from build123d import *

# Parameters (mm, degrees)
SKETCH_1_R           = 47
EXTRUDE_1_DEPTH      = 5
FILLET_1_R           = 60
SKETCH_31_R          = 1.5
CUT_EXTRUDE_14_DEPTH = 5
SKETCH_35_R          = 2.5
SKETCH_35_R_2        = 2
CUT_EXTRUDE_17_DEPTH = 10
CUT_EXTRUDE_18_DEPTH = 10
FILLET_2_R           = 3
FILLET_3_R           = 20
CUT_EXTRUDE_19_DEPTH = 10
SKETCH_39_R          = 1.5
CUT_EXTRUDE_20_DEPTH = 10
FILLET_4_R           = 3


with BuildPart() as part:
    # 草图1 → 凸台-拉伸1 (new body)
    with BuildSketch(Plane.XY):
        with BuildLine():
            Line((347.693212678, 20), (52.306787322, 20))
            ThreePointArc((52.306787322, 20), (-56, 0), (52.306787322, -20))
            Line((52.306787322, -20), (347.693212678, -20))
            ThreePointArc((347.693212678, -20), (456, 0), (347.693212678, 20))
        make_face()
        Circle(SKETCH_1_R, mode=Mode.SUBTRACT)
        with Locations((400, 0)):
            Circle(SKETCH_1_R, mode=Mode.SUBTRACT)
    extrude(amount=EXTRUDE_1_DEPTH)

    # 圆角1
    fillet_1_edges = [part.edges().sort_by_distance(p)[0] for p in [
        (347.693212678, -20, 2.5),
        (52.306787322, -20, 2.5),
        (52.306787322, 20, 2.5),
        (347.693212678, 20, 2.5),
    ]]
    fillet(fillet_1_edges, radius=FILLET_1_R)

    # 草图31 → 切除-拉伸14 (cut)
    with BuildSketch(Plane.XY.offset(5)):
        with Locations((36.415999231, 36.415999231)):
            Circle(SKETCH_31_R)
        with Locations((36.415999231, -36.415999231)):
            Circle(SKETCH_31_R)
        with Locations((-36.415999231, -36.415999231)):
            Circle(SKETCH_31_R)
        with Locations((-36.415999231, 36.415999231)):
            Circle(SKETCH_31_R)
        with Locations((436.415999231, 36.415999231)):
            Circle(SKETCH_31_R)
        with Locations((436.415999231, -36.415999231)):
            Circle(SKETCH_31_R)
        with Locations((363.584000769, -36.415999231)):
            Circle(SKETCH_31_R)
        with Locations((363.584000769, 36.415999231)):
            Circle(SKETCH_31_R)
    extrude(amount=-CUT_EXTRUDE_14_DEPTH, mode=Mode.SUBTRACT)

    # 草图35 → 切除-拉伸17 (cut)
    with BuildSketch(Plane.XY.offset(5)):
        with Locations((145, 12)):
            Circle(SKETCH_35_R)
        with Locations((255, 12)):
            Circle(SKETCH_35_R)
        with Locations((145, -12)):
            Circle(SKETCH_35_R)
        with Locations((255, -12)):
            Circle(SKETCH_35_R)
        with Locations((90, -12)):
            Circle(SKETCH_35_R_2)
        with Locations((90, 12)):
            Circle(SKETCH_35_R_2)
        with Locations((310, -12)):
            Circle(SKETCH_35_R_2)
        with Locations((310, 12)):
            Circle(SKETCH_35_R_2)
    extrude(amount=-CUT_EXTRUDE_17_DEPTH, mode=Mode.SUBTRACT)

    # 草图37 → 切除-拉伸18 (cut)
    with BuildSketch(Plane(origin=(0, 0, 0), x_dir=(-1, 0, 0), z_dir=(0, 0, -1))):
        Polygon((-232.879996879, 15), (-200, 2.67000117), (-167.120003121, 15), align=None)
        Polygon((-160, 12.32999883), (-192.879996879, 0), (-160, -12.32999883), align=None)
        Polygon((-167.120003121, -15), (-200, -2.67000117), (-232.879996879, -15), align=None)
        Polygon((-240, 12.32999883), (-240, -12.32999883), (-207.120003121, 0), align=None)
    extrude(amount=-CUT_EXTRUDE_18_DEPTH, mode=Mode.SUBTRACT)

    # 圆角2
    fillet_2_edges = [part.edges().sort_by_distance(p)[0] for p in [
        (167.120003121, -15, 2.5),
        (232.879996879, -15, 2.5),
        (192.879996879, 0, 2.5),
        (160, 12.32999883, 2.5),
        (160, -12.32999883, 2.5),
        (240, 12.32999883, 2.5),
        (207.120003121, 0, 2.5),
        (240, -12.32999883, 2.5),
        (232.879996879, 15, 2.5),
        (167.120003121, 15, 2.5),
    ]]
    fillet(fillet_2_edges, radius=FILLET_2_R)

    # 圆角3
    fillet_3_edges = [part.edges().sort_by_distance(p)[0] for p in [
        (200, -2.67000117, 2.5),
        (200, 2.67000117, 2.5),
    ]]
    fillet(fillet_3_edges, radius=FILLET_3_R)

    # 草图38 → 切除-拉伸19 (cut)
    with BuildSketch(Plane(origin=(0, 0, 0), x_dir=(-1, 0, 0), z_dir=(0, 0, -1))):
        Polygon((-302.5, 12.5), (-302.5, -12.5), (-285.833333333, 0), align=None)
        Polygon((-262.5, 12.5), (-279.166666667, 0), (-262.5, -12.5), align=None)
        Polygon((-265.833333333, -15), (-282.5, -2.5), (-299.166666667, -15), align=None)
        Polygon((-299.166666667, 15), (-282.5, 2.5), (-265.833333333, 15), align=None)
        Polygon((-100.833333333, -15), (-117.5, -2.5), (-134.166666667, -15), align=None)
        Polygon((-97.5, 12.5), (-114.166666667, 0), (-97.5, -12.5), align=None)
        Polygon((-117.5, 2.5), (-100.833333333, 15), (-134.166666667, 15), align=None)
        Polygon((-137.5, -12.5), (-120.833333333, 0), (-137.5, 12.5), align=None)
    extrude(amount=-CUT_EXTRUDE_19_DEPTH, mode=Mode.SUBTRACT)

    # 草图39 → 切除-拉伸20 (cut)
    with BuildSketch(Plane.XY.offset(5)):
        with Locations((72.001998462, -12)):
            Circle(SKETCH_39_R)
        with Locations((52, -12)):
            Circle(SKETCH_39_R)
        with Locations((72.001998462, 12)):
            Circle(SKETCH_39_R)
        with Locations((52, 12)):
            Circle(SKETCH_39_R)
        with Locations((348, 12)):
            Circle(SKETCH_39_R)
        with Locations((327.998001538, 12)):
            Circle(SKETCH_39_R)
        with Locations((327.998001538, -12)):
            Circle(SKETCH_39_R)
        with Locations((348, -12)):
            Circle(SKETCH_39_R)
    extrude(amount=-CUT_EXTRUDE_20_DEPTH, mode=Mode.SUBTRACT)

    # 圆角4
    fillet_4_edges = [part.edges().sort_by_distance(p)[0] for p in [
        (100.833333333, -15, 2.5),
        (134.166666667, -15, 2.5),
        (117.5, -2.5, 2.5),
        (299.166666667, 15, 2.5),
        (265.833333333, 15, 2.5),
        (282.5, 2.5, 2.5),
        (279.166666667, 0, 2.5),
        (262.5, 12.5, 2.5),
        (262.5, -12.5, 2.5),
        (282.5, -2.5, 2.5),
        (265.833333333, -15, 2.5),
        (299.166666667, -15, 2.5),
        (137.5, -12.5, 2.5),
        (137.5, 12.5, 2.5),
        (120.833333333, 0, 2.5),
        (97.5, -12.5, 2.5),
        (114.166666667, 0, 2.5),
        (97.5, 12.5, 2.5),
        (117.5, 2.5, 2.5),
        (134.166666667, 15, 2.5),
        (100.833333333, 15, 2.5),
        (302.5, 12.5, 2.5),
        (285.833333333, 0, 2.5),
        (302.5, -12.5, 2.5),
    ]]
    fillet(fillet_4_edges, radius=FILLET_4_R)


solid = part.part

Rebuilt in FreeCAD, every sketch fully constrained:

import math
import FreeCAD as App
import Part
import Sketcher


def edges_at(feature, points):
    """Names of the edges that pass closest to the given points."""
    edges = feature.Shape.Edges
    near = lambda p: min(range(len(edges)), key=lambda i: edges[i].distToShape(Part.Vertex(*p))[0])
    return sorted({f"Edge{near(p) + 1}" for p in points})


def add_polygon(sketch, points):
    """Adds a closed chain of lines whose ends are joined by coincident constraints."""
    first, n = sketch.GeometryCount, len(points)
    for a, b in zip(points, points[1:] + points[:1]):
        sketch.addGeometry(Part.LineSegment(App.Vector(*a, 0), App.Vector(*b, 0)), False)
    for i in range(n):
        sketch.addConstraint(Sketcher.Constraint("Coincident", first + i, 2, first + (i + 1) % n, 1))

doc = App.newDocument("Part")
body = doc.addObject("PartDesign::Body", "Body")

sketch1 = body.newObject("Sketcher::SketchObject", "Sketch")
sketch1.AttachmentSupport = (doc.getObject("XY_Plane"), [""])
sketch1.MapMode = "FlatFace"
sketch1.addGeometry([
    Part.LineSegment(App.Vector(348, 20, 0), App.Vector(52, 20, 0)),
    Part.ArcOfCircle(Part.Circle(App.Vector(0, 0, 0), App.Vector(0, 0, 1), 56), math.radians(21), math.radians(339)),
    Part.LineSegment(App.Vector(52, -20, 0), App.Vector(348, -20, 0)),
    Part.ArcOfCircle(Part.Circle(App.Vector(400, 0, 0), App.Vector(0, 0, 1), 56), math.radians(-159), math.radians(159)),
    Part.Circle(App.Vector(0, 0, 0), App.Vector(0, 0, 1), 47),
    Part.Circle(App.Vector(400, 0, 0), App.Vector(0, 0, 1), 47),
], False)
sketch1.addConstraint([
    Sketcher.Constraint("Coincident", 0, 2, 1, 1),
    Sketcher.Constraint("Coincident", 1, 2, 2, 1),
    Sketcher.Constraint("Coincident", 2, 2, 3, 1),
    Sketcher.Constraint("Coincident", 3, 2, 0, 1),
    Sketcher.Constraint("Horizontal", 0),
    Sketcher.Constraint("Horizontal", 2),
    Sketcher.Constraint("Coincident", 1, 3, -1, 1),
    Sketcher.Constraint("Coincident", 4, 3, -1, 1),
    Sketcher.Constraint("Coincident", 5, 3, 3, 3),
    Sketcher.Constraint("Equal", 1, 3),
    Sketcher.Constraint("Equal", 4, 5),
    Sketcher.Constraint("Symmetric", 2, 2, 3, 2, -1),
    Sketcher.Constraint("Diameter", 4, 94.0),
    Sketcher.Constraint("Radius", 1, 56.0),
    Sketcher.Constraint("DistanceX", -1, 1, 3, 3, 400.0),
    Sketcher.Constraint("DistanceY", -1, 1, 0, 2, 20.0),
])
pad1 = body.newObject("PartDesign::Pad", "Pad")
pad1.Profile = sketch1
pad1.Length = 5
doc.recompute()

fillet = body.newObject("PartDesign::Fillet", "Fillet")
fillet.Base = (pad1, edges_at(pad1, [
    (347.693, -20, 2.5),
    (52.307, -20, 2.5),
    (52.307, 20, 2.5),
    (347.693, 20, 2.5),
]))
fillet.Radius = 60

sketch2 = body.newObject("Sketcher::SketchObject", "Sketch001")
sketch2.AttachmentSupport = (doc.getObject("XY_Plane"), [""])
sketch2.MapMode = "FlatFace"
sketch2.AttachmentOffset = App.Placement(App.Vector(0, 0, 5), App.Rotation())
sketch2.addGeometry([
    Part.Circle(App.Vector(36.4, 36.4, 0), App.Vector(0, 0, 1), 1.5),
    Part.Circle(App.Vector(36.4, -36.4, 0), App.Vector(0, 0, 1), 1.5),
    Part.Circle(App.Vector(-36.4, -36.4, 0), App.Vector(0, 0, 1), 1.5),
    Part.Circle(App.Vector(-36.4, 36.4, 0), App.Vector(0, 0, 1), 1.5),
    Part.Circle(App.Vector(436.4, 36.4, 0), App.Vector(0, 0, 1), 1.5),
    Part.Circle(App.Vector(436.4, -36.4, 0), App.Vector(0, 0, 1), 1.5),
    Part.Circle(App.Vector(363.6, -36.4, 0), App.Vector(0, 0, 1), 1.5),
    Part.Circle(App.Vector(363.6, 36.4, 0), App.Vector(0, 0, 1), 1.5),
], False)
sketch2.addConstraint([
    Sketcher.Constraint("Equal", 0, 1),
    Sketcher.Constraint("Equal", 1, 2),
    Sketcher.Constraint("Equal", 2, 3),
    Sketcher.Constraint("Equal", 3, 4),
    Sketcher.Constraint("Equal", 4, 5),
    Sketcher.Constraint("Equal", 5, 6),
    Sketcher.Constraint("Equal", 6, 7),
    Sketcher.Constraint("Symmetric", 0, 3, 2, 3, -1, 1),
    Sketcher.Constraint("Symmetric", 1, 3, 3, 3, -1, 1),
    Sketcher.Constraint("Symmetric", 1, 3, 2, 3, -2),
    Sketcher.Constraint("Symmetric", 4, 3, 5, 3, -1),
    Sketcher.Constraint("Symmetric", 6, 3, 7, 3, -1),
    Sketcher.Constraint("Horizontal", 3, 3, 4, 3),
    Sketcher.Constraint("Horizontal", 5, 3, 6, 3),
    Sketcher.Constraint("Diameter", 0, 3.0),
    Sketcher.Constraint("DistanceX", 0, 3, 4, 3, 400.0),
    Sketcher.Constraint("DistanceX", 2, 3, 6, 3, 400.0),
    Sketcher.Constraint("DistanceX", -1, 1, 0, 3, 36.415999),
    Sketcher.Constraint("DistanceY", -1, 1, 0, 3, 36.415999),
])
pocket1 = body.newObject("PartDesign::Pocket", "Pocket")
pocket1.Profile = sketch2
pocket1.Length = 5

sketch3 = body.newObject("Sketcher::SketchObject", "Sketch002")
sketch3.AttachmentSupport = (doc.getObject("XY_Plane"), [""])
sketch3.MapMode = "FlatFace"
sketch3.AttachmentOffset = App.Placement(App.Vector(0, 0, 5), App.Rotation())
sketch3.addGeometry([
    Part.Circle(App.Vector(145, 12, 0), App.Vector(0, 0, 1), 2.5),
    Part.Circle(App.Vector(255, 12, 0), App.Vector(0, 0, 1), 2.5),
    Part.Circle(App.Vector(145, -12, 0), App.Vector(0, 0, 1), 2.5),
    Part.Circle(App.Vector(255, -12, 0), App.Vector(0, 0, 1), 2.5),
    Part.Circle(App.Vector(90, -12, 0), App.Vector(0, 0, 1), 2),
    Part.Circle(App.Vector(90, 12, 0), App.Vector(0, 0, 1), 2),
    Part.Circle(App.Vector(310, -12, 0), App.Vector(0, 0, 1), 2),
    Part.Circle(App.Vector(310, 12, 0), App.Vector(0, 0, 1), 2),
], False)
sketch3.addConstraint([
    Sketcher.Constraint("Equal", 0, 1),
    Sketcher.Constraint("Equal", 1, 2),
    Sketcher.Constraint("Equal", 2, 3),
    Sketcher.Constraint("Equal", 4, 5),
    Sketcher.Constraint("Equal", 5, 6),
    Sketcher.Constraint("Equal", 6, 7),
    Sketcher.Constraint("Symmetric", 0, 3, 2, 3, -1),
    Sketcher.Constraint("Symmetric", 1, 3, 3, 3, -1),
    Sketcher.Constraint("Symmetric", 4, 3, 5, 3, -1),
    Sketcher.Constraint("Symmetric", 6, 3, 7, 3, -1),
    Sketcher.Constraint("Horizontal", 0, 3, 1, 3),
    Sketcher.Constraint("Horizontal", 3, 3, 4, 3),
    Sketcher.Constraint("Horizontal", 4, 3, 6, 3),
    Sketcher.Constraint("Diameter", 0, 5.0),
    Sketcher.Constraint("Diameter", 4, 4.0),
    Sketcher.Constraint("DistanceX", -1, 1, 0, 3, 145.0),
    Sketcher.Constraint("DistanceY", -1, 1, 0, 3, 12.0),
    Sketcher.Constraint("DistanceX", -1, 1, 1, 3, 255.0),
    Sketcher.Constraint("DistanceX", -1, 1, 4, 3, 90.0),
    Sketcher.Constraint("DistanceX", -1, 1, 6, 3, 310.0),
])
pocket2 = body.newObject("PartDesign::Pocket", "Pocket001")
pocket2.Profile = sketch3
pocket2.Length = 10

sketch4 = body.newObject("Sketcher::SketchObject", "Sketch003")
sketch4.AttachmentSupport = (doc.getObject("XY_Plane"), [""])
sketch4.MapMode = "FlatFace"
add_polygon(sketch4, [(233, 15), (200, 3), (167, 15)])
add_polygon(sketch4, [(160, 12), (193, 0), (160, -12)])
add_polygon(sketch4, [(167, -15), (200, -3), (233, -15)])
add_polygon(sketch4, [(240, 12), (240, -12), (207, 0)])
sketch4.addConstraint([
    Sketcher.Constraint("Horizontal", 2),
    Sketcher.Constraint("Vertical", 5),
    Sketcher.Constraint("Horizontal", 8),
    Sketcher.Constraint("Vertical", 9),
    Sketcher.Constraint("Symmetric", 0, 2, 6, 2, -1),
    Sketcher.Constraint("Symmetric", 2, 2, 7, 2, -1),
    Sketcher.Constraint("PointOnObject", 3, 2, -1),
    Sketcher.Constraint("PointOnObject", 10, 2, -1),
    Sketcher.Constraint("Parallel", 1, 3),
    Sketcher.Constraint("Parallel", 0, 4),
    Sketcher.Constraint("Parallel", 4, 6),
    Sketcher.Constraint("Parallel", 3, 7),
    Sketcher.Constraint("Parallel", 7, 10),
    Sketcher.Constraint("Parallel", 6, 11),
    Sketcher.Constraint("Horizontal", 4, 2, 9, 2),
    Sketcher.Constraint("Equal", 1, 3),
    Sketcher.Constraint("DistanceX", -1, 1, 0, 2, 200.0),
    Sketcher.Constraint("DistanceY", -1, 1, 1, 2, 15.0),
    Sketcher.Constraint("DistanceX", -1, 1, 4, 2, 160.0),
    Sketcher.Constraint("DistanceX", -1, 1, 9, 2, 240.0),
    Sketcher.Constraint("DistanceY", -1, 1, 0, 2, 2.670001),
    Sketcher.Constraint("DistanceX", 2, 1, 2, 2, 65.759994),
])
pocket3 = body.newObject("PartDesign::Pocket", "Pocket002")
pocket3.Profile = sketch4
pocket3.Length = 10
pocket3.Reversed = True
doc.recompute()

fillet2 = body.newObject("PartDesign::Fillet", "Fillet001")
fillet2.Base = (pocket3, edges_at(pocket3, [
    (167.12, -15, 2.5),
    (232.88, -15, 2.5),
    (192.88, 0, 2.5),
    (160, 12.33, 2.5),
    (160, -12.33, 2.5),
    (240, 12.33, 2.5),
    (207.12, 0, 2.5),
    (240, -12.33, 2.5),
    (232.88, 15, 2.5),
    (167.12, 15, 2.5),
]))
fillet2.Radius = 3
doc.recompute()

fillet3 = body.newObject("PartDesign::Fillet", "Fillet002")
fillet3.Base = (fillet2, edges_at(fillet2, [(200, -2.67, 2.5), (200, 2.67, 2.5)]))
fillet3.Radius = 20

sketch5 = body.newObject("Sketcher::SketchObject", "Sketch004")
sketch5.AttachmentSupport = (doc.getObject("XY_Plane"), [""])
sketch5.MapMode = "FlatFace"
add_polygon(sketch5, [(302, 12), (302, -12), (286, 0)])
add_polygon(sketch5, [(262, 12), (279, 0), (262, -12)])
add_polygon(sketch5, [(266, -15), (282, -2), (299, -15)])
add_polygon(sketch5, [(299, 15), (282, 2), (266, 15)])
add_polygon(sketch5, [(101, -15), (118, -2), (134, -15)])
add_polygon(sketch5, [(98, 12), (114, 0), (98, -12)])
add_polygon(sketch5, [(118, 2), (101, 15), (134, 15)])
add_polygon(sketch5, [(138, -12), (121, 0), (138, 12)])
sketch5.addConstraint([
    Sketcher.Constraint("Vertical", 0),
    Sketcher.Constraint("Vertical", 5),
    Sketcher.Constraint("Horizontal", 8),
    Sketcher.Constraint("Horizontal", 11),
    Sketcher.Constraint("Horizontal", 14),
    Sketcher.Constraint("Vertical", 17),
    Sketcher.Constraint("Horizontal", 19),
    Sketcher.Constraint("Vertical", 23),
    Sketcher.Constraint("Symmetric", 6, 2, 9, 2, -1),
    Sketcher.Constraint("Symmetric", 8, 2, 10, 2, -1),
    Sketcher.Constraint("Symmetric", 14, 2, 18, 2, -1),
    Sketcher.Constraint("Symmetric", 12, 2, 20, 2, -1),
    Sketcher.Constraint("PointOnObject", 1, 2, -1),
    Sketcher.Constraint("PointOnObject", 3, 2, -1),
    Sketcher.Constraint("PointOnObject", 15, 2, -1),
    Sketcher.Constraint("PointOnObject", 21, 2, -1),
    Sketcher.Constraint("Parallel", 1, 3),
    Sketcher.Constraint("Parallel", 2, 4),
    Sketcher.Constraint("Parallel", 4, 6),
    Sketcher.Constraint("Parallel", 3, 7),
    Sketcher.Constraint("Parallel", 6, 9),
    Sketcher.Constraint("Parallel", 7, 10),
    Sketcher.Constraint("Parallel", 9, 12),
    Sketcher.Constraint("Parallel", 10, 13),
    Sketcher.Constraint("Parallel", 13, 15),
    Sketcher.Constraint("Parallel", 12, 16),
    Sketcher.Constraint("Parallel", 16, 20),
    Sketcher.Constraint("Parallel", 18, 21),
    Sketcher.Constraint("Parallel", 20, 22),
    Sketcher.Constraint("Horizontal", 0, 2, 4, 2),
    Sketcher.Constraint("Horizontal", 6, 2, 12, 2),
    Sketcher.Constraint("Horizontal", 8, 2, 13, 2),
    Sketcher.Constraint("Horizontal", 4, 2, 16, 2),
    Sketcher.Constraint("Horizontal", 17, 2, 22, 2),
    Sketcher.Constraint("Equal", 4, 6),
    Sketcher.Constraint("DistanceY", 0, 2, 0, 1, 25.0),
    Sketcher.Constraint("DistanceY", 7, 2, -1, 1, 15.0),
    Sketcher.Constraint("DistanceX", 4, 2, 0, 2, 40.0),
    Sketcher.Constraint("DistanceX", 6, 2, 0, 2, 20.0),
    Sketcher.Constraint("DistanceX", 12, 2, 4, 2, 145.0),
    Sketcher.Constraint("DistanceX", 15, 2, 13, 2, 20.0),
    Sketcher.Constraint("DistanceX", 20, 2, 22, 2, 20.0),
    Sketcher.Constraint("DistanceX", -1, 1, 0, 2, 302.5),
    Sketcher.Constraint("DistanceX", 8, 2, 8, 1, 33.333333),
])
pocket4 = body.newObject("PartDesign::Pocket", "Pocket003")
pocket4.Profile = sketch5
pocket4.Length = 10
pocket4.Reversed = True

sketch6 = body.newObject("Sketcher::SketchObject", "Sketch005")
sketch6.AttachmentSupport = (doc.getObject("XY_Plane"), [""])
sketch6.MapMode = "FlatFace"
sketch6.AttachmentOffset = App.Placement(App.Vector(0, 0, 5), App.Rotation())
sketch6.addGeometry([
    Part.Circle(App.Vector(72, -12, 0), App.Vector(0, 0, 1), 1.5),
    Part.Circle(App.Vector(52, -12, 0), App.Vector(0, 0, 1), 1.5),
    Part.Circle(App.Vector(72, 12, 0), App.Vector(0, 0, 1), 1.5),
    Part.Circle(App.Vector(52, 12, 0), App.Vector(0, 0, 1), 1.5),
    Part.Circle(App.Vector(348, 12, 0), App.Vector(0, 0, 1), 1.5),
    Part.Circle(App.Vector(328, 12, 0), App.Vector(0, 0, 1), 1.5),
    Part.Circle(App.Vector(328, -12, 0), App.Vector(0, 0, 1), 1.5),
    Part.Circle(App.Vector(348, -12, 0), App.Vector(0, 0, 1), 1.5),
], False)
sketch6.addConstraint([
    Sketcher.Constraint("Equal", 0, 1),
    Sketcher.Constraint("Equal", 1, 2),
    Sketcher.Constraint("Equal", 2, 3),
    Sketcher.Constraint("Equal", 3, 4),
    Sketcher.Constraint("Equal", 4, 5),
    Sketcher.Constraint("Equal", 5, 6),
    Sketcher.Constraint("Equal", 6, 7),
    Sketcher.Constraint("Symmetric", 0, 3, 2, 3, -1),
    Sketcher.Constraint("Symmetric", 1, 3, 3, 3, -1),
    Sketcher.Constraint("Symmetric", 5, 3, 6, 3, -1),
    Sketcher.Constraint("Symmetric", 4, 3, 7, 3, -1),
    Sketcher.Constraint("Horizontal", 0, 3, 1, 3),
    Sketcher.Constraint("Horizontal", 3, 3, 4, 3),
    Sketcher.Constraint("Horizontal", 4, 3, 5, 3),
    Sketcher.Constraint("Diameter", 0, 3.0),
    Sketcher.Constraint("DistanceY", 0, 3, -1, 1, 12.0),
    Sketcher.Constraint("DistanceX", -1, 1, 1, 3, 52.0),
    Sketcher.Constraint("DistanceX", -1, 1, 4, 3, 348.0),
    Sketcher.Constraint("DistanceX", -1, 1, 0, 3, 72.001998),
    Sketcher.Constraint("DistanceX", -1, 1, 5, 3, 327.998002),
])
pocket5 = body.newObject("PartDesign::Pocket", "Pocket004")
pocket5.Profile = sketch6
pocket5.Length = 10
doc.recompute()

fillet4 = body.newObject("PartDesign::Fillet", "Fillet003")
fillet4.Base = (pocket5, edges_at(pocket5, [
    (100.833, -15, 2.5),
    (134.167, -15, 2.5),
    (117.5, -2.5, 2.5),
    (299.167, 15, 2.5),
    (265.833, 15, 2.5),
    (282.5, 2.5, 2.5),
    (279.167, 0, 2.5),
    (262.5, 12.5, 2.5),
    (262.5, -12.5, 2.5),
    (282.5, -2.5, 2.5),
    (265.833, -15, 2.5),
    (299.167, -15, 2.5),
    (137.5, -12.5, 2.5),
    (137.5, 12.5, 2.5),
    (120.833, 0, 2.5),
    (97.5, -12.5, 2.5),
    (114.167, 0, 2.5),
    (97.5, 12.5, 2.5),
    (117.5, 2.5, 2.5),
    (134.167, 15, 2.5),
    (100.833, 15, 2.5),
    (302.5, 12.5, 2.5),
    (285.833, 0, 2.5),
    (302.5, -12.5, 2.5),
]))
fillet4.Radius = 3

doc.recompute()
